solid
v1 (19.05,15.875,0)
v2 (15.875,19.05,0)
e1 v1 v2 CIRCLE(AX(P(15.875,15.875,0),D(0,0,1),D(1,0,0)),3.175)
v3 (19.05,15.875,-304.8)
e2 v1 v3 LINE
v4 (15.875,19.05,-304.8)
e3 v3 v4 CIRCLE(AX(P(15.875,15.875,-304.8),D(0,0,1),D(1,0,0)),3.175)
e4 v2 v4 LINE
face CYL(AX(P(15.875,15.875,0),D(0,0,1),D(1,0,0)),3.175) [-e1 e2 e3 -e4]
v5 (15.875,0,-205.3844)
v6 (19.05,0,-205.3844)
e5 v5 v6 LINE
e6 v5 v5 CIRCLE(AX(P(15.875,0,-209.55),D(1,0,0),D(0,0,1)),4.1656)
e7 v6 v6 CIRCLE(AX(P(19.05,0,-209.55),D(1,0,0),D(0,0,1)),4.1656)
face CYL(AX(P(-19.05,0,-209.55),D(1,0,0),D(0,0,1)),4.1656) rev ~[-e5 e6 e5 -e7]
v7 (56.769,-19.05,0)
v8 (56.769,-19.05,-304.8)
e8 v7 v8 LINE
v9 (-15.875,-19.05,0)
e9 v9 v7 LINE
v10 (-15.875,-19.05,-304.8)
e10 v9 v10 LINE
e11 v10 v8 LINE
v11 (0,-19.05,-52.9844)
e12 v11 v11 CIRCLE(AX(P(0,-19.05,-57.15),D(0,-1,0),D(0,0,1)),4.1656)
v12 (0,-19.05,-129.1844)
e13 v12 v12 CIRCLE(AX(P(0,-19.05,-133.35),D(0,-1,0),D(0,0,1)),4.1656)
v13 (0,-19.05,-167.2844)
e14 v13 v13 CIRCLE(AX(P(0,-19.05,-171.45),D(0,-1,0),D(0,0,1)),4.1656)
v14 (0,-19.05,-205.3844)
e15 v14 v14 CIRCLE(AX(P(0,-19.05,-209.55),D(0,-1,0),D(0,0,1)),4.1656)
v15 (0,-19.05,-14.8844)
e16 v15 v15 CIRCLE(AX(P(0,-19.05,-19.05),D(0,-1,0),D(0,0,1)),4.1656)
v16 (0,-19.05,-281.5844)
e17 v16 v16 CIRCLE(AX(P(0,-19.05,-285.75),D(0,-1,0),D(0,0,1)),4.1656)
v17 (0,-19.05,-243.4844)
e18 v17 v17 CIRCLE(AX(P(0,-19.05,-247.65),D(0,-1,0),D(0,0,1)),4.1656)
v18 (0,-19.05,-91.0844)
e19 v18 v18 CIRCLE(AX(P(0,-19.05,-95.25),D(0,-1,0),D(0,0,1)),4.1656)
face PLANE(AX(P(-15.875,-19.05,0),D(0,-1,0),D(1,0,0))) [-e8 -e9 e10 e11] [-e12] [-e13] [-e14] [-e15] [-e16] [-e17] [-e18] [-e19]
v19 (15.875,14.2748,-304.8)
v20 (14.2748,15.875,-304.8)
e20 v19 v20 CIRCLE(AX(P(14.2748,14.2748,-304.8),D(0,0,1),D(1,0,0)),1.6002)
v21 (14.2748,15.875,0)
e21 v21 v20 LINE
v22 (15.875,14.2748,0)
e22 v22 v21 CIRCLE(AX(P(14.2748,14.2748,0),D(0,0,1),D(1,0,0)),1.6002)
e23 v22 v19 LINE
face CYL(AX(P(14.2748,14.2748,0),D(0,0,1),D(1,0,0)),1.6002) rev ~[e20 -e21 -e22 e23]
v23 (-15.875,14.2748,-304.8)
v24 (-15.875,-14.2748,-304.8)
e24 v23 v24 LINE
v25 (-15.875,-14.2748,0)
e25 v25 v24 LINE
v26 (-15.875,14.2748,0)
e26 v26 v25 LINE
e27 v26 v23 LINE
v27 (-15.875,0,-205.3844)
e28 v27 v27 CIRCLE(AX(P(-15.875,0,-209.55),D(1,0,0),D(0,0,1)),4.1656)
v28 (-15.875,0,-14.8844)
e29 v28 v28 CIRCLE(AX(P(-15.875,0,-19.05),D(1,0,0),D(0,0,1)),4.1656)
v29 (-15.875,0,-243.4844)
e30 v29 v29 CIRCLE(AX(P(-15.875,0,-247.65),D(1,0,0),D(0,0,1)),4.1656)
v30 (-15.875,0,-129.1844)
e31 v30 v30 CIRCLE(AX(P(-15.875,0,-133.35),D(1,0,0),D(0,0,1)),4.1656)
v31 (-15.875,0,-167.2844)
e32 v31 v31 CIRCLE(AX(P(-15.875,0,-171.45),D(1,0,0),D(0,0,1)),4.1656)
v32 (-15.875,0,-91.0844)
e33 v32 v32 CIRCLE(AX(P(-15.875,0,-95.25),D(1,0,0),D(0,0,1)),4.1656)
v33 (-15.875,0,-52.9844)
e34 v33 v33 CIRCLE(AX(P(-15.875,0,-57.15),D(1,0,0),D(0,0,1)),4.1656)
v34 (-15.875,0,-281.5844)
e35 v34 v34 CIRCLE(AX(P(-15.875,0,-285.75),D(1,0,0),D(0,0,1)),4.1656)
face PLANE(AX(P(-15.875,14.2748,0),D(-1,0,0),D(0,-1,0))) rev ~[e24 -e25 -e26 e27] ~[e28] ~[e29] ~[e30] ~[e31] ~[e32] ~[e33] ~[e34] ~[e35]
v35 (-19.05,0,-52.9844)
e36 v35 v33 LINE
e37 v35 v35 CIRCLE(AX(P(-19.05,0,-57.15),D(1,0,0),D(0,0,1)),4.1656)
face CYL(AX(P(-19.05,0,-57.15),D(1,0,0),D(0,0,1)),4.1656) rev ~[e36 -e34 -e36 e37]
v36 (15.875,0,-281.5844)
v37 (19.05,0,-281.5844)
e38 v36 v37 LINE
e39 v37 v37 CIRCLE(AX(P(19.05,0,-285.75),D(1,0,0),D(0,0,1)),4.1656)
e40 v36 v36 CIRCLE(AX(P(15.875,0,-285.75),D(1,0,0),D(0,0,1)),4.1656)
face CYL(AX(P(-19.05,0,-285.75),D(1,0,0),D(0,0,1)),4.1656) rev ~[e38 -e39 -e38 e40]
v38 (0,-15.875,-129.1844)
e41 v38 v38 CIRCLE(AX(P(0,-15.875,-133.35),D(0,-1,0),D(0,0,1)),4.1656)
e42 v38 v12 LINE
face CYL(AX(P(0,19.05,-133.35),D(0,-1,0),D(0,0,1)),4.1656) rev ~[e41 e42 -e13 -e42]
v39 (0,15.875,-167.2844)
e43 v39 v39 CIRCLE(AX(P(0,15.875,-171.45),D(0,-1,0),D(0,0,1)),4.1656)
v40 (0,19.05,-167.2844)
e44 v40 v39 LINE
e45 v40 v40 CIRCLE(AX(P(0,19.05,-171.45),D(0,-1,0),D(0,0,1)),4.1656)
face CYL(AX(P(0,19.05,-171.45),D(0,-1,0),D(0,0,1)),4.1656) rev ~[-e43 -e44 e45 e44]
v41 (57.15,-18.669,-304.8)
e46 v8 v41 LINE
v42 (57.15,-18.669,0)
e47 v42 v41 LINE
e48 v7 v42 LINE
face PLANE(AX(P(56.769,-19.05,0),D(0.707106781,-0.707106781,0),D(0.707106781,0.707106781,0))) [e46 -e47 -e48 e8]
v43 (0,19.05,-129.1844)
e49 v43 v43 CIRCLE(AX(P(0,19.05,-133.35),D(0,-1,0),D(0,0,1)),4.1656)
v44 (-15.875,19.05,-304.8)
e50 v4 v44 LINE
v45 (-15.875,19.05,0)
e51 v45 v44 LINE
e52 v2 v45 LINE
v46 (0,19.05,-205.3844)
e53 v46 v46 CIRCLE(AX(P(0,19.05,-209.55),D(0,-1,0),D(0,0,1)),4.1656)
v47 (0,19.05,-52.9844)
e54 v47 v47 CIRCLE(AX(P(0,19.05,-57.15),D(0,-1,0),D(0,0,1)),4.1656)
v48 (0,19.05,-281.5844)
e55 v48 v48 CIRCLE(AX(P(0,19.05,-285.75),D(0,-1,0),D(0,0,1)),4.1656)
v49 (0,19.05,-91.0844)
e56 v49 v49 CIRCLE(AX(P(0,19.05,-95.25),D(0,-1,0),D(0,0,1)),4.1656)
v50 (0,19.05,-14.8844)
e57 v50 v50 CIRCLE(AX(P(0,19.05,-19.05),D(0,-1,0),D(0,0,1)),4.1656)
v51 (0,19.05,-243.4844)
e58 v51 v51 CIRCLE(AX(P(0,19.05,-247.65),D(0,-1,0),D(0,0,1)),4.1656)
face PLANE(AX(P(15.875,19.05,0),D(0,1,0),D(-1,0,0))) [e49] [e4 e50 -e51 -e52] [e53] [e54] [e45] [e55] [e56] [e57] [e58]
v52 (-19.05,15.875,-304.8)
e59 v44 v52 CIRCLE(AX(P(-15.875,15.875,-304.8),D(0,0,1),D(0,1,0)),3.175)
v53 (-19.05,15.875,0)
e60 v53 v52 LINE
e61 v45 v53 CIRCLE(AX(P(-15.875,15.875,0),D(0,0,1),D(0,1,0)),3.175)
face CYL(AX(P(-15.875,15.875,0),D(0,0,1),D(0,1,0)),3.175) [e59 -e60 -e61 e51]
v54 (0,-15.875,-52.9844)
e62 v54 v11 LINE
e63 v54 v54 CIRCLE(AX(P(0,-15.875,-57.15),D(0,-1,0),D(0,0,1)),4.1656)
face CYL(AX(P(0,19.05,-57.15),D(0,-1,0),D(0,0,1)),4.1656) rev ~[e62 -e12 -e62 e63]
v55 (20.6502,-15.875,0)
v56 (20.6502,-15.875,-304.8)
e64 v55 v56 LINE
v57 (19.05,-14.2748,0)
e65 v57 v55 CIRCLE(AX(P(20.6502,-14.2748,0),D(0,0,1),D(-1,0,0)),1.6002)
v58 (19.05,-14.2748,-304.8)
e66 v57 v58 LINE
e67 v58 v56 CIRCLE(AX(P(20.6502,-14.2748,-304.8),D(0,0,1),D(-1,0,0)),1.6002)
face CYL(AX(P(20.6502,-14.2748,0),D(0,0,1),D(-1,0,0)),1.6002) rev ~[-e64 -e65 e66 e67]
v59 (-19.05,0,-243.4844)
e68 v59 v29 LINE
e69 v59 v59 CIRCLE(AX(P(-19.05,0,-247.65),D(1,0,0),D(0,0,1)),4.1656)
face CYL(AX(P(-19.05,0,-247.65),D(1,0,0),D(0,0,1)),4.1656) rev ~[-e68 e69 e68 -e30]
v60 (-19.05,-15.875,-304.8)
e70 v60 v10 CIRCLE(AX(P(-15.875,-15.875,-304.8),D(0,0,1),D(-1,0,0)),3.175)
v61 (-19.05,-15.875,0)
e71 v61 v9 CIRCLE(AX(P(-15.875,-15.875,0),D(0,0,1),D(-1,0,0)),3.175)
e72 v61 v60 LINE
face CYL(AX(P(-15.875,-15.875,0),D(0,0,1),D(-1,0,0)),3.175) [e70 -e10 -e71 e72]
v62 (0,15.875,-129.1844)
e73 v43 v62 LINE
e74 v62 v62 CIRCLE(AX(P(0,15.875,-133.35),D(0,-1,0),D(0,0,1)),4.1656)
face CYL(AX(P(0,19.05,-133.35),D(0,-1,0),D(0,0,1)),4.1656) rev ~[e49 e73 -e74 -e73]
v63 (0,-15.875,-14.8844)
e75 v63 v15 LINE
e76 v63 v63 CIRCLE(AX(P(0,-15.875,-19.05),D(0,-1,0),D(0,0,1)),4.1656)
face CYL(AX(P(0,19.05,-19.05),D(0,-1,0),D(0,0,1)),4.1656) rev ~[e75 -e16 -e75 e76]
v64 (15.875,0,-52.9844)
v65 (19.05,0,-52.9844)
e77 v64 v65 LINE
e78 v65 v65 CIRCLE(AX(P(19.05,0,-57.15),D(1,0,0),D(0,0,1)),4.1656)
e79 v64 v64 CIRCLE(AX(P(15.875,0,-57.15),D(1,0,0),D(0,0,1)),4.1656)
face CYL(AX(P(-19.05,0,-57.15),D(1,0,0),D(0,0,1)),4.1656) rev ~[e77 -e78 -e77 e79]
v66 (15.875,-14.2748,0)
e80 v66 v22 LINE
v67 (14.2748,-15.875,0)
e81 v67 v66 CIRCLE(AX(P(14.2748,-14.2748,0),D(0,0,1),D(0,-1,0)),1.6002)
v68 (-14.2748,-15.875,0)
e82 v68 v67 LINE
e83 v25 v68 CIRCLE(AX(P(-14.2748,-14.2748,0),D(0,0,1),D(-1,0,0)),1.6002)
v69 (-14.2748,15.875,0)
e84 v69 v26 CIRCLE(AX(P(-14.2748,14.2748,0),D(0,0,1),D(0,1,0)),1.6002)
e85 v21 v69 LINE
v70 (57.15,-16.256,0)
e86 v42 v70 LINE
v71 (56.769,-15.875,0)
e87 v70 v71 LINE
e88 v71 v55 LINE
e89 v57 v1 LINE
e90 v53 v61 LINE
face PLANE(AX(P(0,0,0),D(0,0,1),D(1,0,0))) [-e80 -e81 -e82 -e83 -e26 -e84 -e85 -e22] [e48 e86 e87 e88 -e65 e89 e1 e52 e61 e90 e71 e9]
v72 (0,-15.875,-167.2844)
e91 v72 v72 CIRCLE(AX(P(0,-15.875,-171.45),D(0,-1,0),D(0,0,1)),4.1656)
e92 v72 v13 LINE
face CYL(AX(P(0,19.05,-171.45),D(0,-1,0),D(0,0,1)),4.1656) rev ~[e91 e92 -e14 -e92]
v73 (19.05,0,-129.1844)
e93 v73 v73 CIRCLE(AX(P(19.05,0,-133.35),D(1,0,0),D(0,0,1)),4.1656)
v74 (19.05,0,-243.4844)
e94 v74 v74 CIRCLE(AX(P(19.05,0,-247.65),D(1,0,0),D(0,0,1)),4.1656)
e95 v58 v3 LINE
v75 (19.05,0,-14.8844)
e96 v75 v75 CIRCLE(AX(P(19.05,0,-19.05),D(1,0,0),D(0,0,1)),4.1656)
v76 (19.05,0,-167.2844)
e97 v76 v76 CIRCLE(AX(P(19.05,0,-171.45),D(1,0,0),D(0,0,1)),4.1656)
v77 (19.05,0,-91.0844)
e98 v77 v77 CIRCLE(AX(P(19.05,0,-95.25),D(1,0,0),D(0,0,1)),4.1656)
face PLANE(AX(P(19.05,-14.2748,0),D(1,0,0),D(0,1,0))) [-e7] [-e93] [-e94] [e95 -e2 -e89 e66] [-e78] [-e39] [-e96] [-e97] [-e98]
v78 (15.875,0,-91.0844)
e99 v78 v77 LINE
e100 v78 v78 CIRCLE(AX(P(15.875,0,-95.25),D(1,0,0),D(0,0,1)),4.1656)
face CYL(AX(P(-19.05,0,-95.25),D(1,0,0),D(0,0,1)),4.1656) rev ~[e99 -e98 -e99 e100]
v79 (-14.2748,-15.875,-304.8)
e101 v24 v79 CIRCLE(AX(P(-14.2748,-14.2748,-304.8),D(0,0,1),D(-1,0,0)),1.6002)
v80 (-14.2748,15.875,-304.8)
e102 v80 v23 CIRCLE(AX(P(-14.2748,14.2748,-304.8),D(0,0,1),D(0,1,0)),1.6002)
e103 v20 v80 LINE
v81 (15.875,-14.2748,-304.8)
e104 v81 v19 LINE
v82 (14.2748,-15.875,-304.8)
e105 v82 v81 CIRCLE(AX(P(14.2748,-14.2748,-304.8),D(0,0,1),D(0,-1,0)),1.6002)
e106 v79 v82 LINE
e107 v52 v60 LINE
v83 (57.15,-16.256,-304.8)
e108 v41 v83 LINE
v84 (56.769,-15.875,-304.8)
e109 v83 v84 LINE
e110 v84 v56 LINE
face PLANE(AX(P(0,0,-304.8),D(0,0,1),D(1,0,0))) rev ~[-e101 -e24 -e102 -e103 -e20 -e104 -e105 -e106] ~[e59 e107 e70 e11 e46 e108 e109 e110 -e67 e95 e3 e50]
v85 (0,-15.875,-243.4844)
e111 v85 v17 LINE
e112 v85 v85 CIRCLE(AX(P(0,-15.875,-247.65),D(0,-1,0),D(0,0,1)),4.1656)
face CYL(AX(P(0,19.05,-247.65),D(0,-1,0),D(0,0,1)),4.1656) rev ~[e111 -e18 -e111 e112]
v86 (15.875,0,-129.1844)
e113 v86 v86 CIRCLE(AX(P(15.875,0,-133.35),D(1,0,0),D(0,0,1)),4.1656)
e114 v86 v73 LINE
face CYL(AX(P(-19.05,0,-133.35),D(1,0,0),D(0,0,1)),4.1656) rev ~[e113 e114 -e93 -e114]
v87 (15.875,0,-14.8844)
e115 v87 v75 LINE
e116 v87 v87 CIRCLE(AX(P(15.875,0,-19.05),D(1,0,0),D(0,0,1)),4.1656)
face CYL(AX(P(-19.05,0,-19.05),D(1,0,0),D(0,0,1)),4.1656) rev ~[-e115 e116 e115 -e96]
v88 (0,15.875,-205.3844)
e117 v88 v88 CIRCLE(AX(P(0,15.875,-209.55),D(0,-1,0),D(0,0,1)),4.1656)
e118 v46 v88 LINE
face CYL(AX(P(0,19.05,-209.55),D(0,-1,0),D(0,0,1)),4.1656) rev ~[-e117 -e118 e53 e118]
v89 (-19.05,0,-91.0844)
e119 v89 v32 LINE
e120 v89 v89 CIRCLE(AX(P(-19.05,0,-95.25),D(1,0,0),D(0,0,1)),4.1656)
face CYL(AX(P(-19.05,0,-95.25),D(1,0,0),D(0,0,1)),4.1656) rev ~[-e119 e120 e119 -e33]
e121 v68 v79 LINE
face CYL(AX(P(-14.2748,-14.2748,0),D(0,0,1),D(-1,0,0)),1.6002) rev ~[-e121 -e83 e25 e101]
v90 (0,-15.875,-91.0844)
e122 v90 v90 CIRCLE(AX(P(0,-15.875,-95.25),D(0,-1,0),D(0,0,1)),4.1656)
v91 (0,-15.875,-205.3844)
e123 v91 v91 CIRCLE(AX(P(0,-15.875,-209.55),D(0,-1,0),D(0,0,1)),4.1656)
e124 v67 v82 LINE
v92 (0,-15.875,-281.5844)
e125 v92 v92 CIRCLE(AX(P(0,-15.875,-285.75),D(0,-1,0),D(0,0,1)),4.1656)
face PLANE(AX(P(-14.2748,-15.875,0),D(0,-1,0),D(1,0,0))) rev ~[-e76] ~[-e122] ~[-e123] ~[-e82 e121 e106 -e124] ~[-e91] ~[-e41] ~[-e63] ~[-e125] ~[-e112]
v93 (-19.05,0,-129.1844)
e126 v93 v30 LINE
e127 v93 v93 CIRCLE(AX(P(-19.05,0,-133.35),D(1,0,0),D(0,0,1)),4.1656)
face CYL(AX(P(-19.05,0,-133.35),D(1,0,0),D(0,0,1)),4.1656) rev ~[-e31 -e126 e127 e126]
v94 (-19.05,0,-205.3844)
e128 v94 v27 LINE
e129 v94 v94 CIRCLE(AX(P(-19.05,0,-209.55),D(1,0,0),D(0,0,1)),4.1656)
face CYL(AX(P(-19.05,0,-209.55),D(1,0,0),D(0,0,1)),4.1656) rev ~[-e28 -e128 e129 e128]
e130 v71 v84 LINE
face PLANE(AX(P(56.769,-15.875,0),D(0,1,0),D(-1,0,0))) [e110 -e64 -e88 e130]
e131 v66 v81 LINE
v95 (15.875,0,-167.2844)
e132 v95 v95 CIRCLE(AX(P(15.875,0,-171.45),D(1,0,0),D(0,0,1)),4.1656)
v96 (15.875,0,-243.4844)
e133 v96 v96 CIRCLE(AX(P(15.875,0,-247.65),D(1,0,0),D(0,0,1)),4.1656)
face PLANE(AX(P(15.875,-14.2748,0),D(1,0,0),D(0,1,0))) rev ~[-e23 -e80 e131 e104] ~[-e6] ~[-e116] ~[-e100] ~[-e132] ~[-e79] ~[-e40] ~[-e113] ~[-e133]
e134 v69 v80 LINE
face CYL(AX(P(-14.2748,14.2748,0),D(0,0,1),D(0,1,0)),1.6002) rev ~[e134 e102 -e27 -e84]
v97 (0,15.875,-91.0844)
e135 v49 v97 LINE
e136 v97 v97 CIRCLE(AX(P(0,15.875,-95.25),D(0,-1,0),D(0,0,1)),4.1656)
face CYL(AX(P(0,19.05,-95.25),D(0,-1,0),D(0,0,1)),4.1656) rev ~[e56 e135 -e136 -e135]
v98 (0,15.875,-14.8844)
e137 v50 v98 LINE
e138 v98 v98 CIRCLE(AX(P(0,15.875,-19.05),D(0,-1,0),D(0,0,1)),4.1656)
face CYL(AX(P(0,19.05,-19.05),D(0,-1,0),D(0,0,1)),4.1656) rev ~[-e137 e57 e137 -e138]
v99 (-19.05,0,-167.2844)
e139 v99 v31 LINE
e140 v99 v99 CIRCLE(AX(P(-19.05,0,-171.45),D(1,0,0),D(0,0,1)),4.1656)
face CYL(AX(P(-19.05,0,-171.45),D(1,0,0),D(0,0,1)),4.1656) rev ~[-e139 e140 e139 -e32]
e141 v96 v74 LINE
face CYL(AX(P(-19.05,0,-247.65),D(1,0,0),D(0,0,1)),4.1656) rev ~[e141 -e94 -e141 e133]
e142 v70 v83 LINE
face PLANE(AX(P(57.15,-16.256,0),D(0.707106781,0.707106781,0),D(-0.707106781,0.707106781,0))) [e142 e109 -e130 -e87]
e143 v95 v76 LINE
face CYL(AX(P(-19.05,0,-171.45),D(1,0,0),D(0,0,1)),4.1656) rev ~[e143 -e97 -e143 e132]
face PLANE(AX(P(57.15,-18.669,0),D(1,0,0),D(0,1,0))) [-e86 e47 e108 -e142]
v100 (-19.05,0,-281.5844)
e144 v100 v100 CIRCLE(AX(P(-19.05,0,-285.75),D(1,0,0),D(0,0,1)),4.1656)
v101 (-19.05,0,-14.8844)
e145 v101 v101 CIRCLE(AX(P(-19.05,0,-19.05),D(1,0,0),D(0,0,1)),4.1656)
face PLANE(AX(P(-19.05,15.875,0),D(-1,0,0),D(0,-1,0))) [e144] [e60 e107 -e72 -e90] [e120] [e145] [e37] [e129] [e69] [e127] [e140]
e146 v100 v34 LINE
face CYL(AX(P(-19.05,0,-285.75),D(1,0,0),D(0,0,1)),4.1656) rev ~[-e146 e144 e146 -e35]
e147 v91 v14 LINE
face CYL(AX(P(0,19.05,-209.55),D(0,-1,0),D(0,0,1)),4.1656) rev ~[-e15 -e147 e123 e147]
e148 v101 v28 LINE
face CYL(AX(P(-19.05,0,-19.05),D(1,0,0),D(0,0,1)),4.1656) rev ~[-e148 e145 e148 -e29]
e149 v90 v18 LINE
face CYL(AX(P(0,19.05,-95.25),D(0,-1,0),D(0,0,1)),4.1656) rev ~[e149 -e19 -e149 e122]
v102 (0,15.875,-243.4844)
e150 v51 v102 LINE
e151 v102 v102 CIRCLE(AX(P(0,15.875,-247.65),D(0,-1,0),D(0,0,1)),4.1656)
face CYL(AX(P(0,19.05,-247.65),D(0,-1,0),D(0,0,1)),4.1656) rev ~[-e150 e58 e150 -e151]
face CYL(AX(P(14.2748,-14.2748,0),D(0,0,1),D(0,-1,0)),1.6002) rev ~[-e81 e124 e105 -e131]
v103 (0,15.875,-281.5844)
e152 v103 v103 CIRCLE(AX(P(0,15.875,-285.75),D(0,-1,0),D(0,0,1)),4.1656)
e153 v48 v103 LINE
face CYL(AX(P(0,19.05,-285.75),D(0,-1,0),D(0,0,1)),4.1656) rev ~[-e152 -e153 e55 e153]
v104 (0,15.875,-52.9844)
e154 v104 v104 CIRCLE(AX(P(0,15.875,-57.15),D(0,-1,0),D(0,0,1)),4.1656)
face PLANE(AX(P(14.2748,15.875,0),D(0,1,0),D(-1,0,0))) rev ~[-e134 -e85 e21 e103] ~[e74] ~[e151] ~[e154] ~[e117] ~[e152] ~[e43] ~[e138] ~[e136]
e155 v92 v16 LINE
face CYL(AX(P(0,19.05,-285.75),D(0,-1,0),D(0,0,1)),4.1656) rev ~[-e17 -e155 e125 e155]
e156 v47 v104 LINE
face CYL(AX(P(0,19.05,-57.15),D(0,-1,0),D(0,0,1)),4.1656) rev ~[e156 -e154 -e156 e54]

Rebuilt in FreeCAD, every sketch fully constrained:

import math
import FreeCAD as App
import Part
import Sketcher
from FreeCAD import Vector
Q = App.Units.Quantity

doc = App.newDocument("Part")
body = doc.addObject("PartDesign::Body", "Body")

sketch1 = doc.addObject("Sketcher::SketchObject", "Sketch")
body.addObject(sketch1)
sketch1.AttachmentSupport = (doc.XY_Plane, [""])
sketch1.MapMode = "FlatFace"
sketch1.addGeometry([
    Part.ArcOfCircle(Part.Circle(Vector(-15.9, -15.9, 0), Vector(0, 0, 1), 3.2), math.radians(180), math.radians(270)),
    Part.LineSegment(Vector(-15.9, -19.1, 0), Vector(56.8, -19.1, 0)),
    Part.LineSegment(Vector(56.8, -19.1, 0), Vector(57.1, -18.7, 0)),
    Part.LineSegment(Vector(57.1, -18.7, 0), Vector(57.1, -16.3, 0)),
    Part.LineSegment(Vector(57.1, -16.3, 0), Vector(56.8, -15.9, 0)),
    Part.LineSegment(Vector(56.8, -15.9, 0), Vector(20.7, -15.9, 0)),
    Part.ArcOfCircle(Part.Circle(Vector(20.7, -14.3, 0), Vector(0, 0, 1), 1.6), math.radians(180), math.radians(270)),
    Part.LineSegment(Vector(19.1, -14.3, 0), Vector(19.1, 15.9, 0)),
    Part.ArcOfCircle(Part.Circle(Vector(15.9, 15.9, 0), Vector(0, 0, 1), 3.2), math.radians(0), math.radians(90)),
    Part.LineSegment(Vector(15.9, 19.1, 0), Vector(-15.9, 19.1, 0)),
    Part.ArcOfCircle(Part.Circle(Vector(-15.9, 15.9, 0), Vector(0, 0, 1), 3.2), math.radians(90), math.radians(180)),
    Part.LineSegment(Vector(-19.1, 15.9, 0), Vector(-19.1, -15.9, 0)),
    Part.ArcOfCircle(Part.Circle(Vector(14.3, -14.3, 0), Vector(0, 0, 1), 1.6), math.radians(-90), math.radians(0)),
    Part.LineSegment(Vector(14.3, -15.9, 0), Vector(-14.3, -15.9, 0)),
    Part.ArcOfCircle(Part.Circle(Vector(-14.3, -14.3, 0), Vector(0, 0, 1), 1.6), math.radians(180), math.radians(270)),
    Part.LineSegment(Vector(-15.9, -14.3, 0), Vector(-15.9, 14.3, 0)),
    Part.ArcOfCircle(Part.Circle(Vector(-14.3, 14.3, 0), Vector(0, 0, 1), 1.6), math.radians(90), math.radians(180)),
    Part.LineSegment(Vector(-14.3, 15.9, 0), Vector(14.3, 15.9, 0)),
    Part.ArcOfCircle(Part.Circle(Vector(14.3, 14.3, 0), Vector(0, 0, 1), 1.6), math.radians(0), math.radians(90)),
    Part.LineSegment(Vector(15.9, 14.3, 0), Vector(15.9, -14.3, 0)),
], False)
sketch1.addConstraint([
    Sketcher.Constraint("Tangent", 0, 2, 1, 1),
    Sketcher.Constraint("Coincident", 1, 2, 2, 1),
    Sketcher.Constraint("Coincident", 2, 2, 3, 1),
    Sketcher.Constraint("Coincident", 3, 2, 4, 1),
    Sketcher.Constraint("Coincident", 4, 2, 5, 1),
    Sketcher.Constraint("Tangent", 5, 2, 6, 2),
    Sketcher.Constraint("Tangent", 6, 1, 7, 1),
    Sketcher.Constraint("Tangent", 7, 2, 8, 1),
    Sketcher.Constraint("Tangent", 8, 2, 9, 1),
    Sketcher.Constraint("Tangent", 9, 2, 10, 1),
    Sketcher.Constraint("Tangent", 10, 2, 11, 1),
    Sketcher.Constraint("Tangent", 11, 2, 0, 1),
    Sketcher.Constraint("Tangent", 12, 1, 13, 1),
    Sketcher.Constraint("Tangent", 13, 2, 14, 2),
    Sketcher.Constraint("Tangent", 14, 1, 15, 1),
    Sketcher.Constraint("Tangent", 15, 2, 16, 2),
    Sketcher.Constraint("Tangent", 16, 1, 17, 1),
    Sketcher.Constraint("Tangent", 17, 2, 18, 2),
    Sketcher.Constraint("Tangent", 18, 1, 19, 1),
    Sketcher.Constraint("Tangent", 19, 2, 12, 2),
    Sketcher.Constraint("Horizontal", 1),
    Sketcher.Constraint("Vertical", 3),
    Sketcher.Constraint("Horizontal", 5),
    Sketcher.Constraint("Vertical", 7),
    Sketcher.Constraint("Horizontal", 9),
    Sketcher.Constraint("Vertical", 11),
    Sketcher.Constraint("Horizontal", 13),
    Sketcher.Constraint("Vertical", 15),
    Sketcher.Constraint("Horizontal", 17),
    Sketcher.Constraint("Vertical", 19),
    Sketcher.Constraint("Equal", 0, 8),
    Sketcher.Constraint("Equal", 8, 10),
    Sketcher.Constraint("Equal", 6, 12),
    Sketcher.Constraint("Equal", 12, 14),
    Sketcher.Constraint("Equal", 14, 16),
    Sketcher.Constraint("Equal", 16, 18),
    Sketcher.Constraint("Symmetric", 0, 3, 8, 3, -1, 1),
    Sketcher.Constraint("Symmetric", 12, 3, 16, 3, -1, 1),
    Sketcher.Constraint("Perpendicular", 2, 4),
    Sketcher.Constraint("Horizontal", 6, 3, 12, 3),
    Sketcher.Constraint("Horizontal", 0, 3, 4, 2),
    Sketcher.Constraint("Vertical", 1, 2, 4, 2),
    Sketcher.Constraint("Vertical", 9, 2, 14, 1),
    Sketcher.Constraint("Equal", 9, 11),
    Sketcher.Constraint("Equal", 2, 4),
    Sketcher.Constraint("Radius", 0, Q("0.125 in")),
    Sketcher.Constraint("Radius", 6, Q("0.063 in")),
    Sketcher.Constraint("DistanceX", 1, 1, 1, 2, Q("2.86 in")),
    Sketcher.Constraint("DistanceX", 9, 2, 9, 1, Q("1.25 in")),
    Sketcher.Constraint("DistanceY", 3, 1, 3, 2, Q("0.095 in")),
])
pad1 = doc.addObject("PartDesign::Pad", "Pad")
body.addObject(pad1)
pad1.Profile = sketch1
pad1.Length = Q("12 in")
pad1.Reversed = True

sketch2 = doc.addObject("Sketcher::SketchObject", "Sketch001")
body.addObject(sketch2)
sketch2.AttachmentSupport = (doc.XZ_Plane, [""])
sketch2.MapMode = "FlatFace"
sketch2.AttachmentOffset = App.Placement(Vector(0, 0, -0.75 * 25.4), App.Rotation())
sketch2.addGeometry(Part.Circle(Vector(0, -19.1, 0), Vector(0, 0, 1), 4.2), False)
sketch2.addConstraint([
    Sketcher.Constraint("PointOnObject", 0, 3, -2),
    Sketcher.Constraint("Diameter", 0, Q("0.328 in")),
    Sketcher.Constraint("DistanceY", 0, 3, -1, 1, Q("0.75 in")),
])
doc.recompute()
hole = doc.addObject("PartDesign::Hole", "Hole")
body.addObject(hole)
hole.Profile = sketch2
hole.ThreadType = "None"
hole.Diameter = Q("0.328 in")
hole.DepthType = "ThroughAll"
hole.Reversed = True

sketch3 = doc.addObject("Sketcher::SketchObject", "Sketch002")
body.addObject(sketch3)
sketch3.AttachmentSupport = (doc.YZ_Plane, [""])
sketch3.MapMode = "FlatFace"
sketch3.AttachmentOffset = App.Placement(Vector(0, 0, -0.75 * 25.4), App.Rotation())
sketch3.addGeometry(Part.Circle(Vector(0, -19.1, 0), Vector(0, 0, 1), 4.2), False)
sketch3.addConstraint([
    Sketcher.Constraint("PointOnObject", 0, 3, -2),
    Sketcher.Constraint("Diameter", 0, Q("0.328 in")),
    Sketcher.Constraint("DistanceY", 0, 3, -1, 1, Q("0.75 in")),
])
doc.recompute()
hole2 = doc.addObject("PartDesign::Hole", "Hole001")
body.addObject(hole2)
hole2.Profile = sketch3
hole2.ThreadType = "None"
hole2.Diameter = Q("0.328 in")
hole2.DepthType = "ThroughAll"
hole2.Reversed = True
doc.recompute()

linearpattern = doc.addObject("PartDesign::LinearPattern", "LinearPattern")
body.addObject(linearpattern)
linearpattern.Originals = [hole, hole2]
linearpattern.Direction = (doc.Z_Axis, [""])
linearpattern.Mode = "offset"
linearpattern.Offset = Q("1.5 in")
linearpattern.Occurrences = 200
linearpattern.Reversed = True
body.Tip = linearpattern

doc.recompute()
